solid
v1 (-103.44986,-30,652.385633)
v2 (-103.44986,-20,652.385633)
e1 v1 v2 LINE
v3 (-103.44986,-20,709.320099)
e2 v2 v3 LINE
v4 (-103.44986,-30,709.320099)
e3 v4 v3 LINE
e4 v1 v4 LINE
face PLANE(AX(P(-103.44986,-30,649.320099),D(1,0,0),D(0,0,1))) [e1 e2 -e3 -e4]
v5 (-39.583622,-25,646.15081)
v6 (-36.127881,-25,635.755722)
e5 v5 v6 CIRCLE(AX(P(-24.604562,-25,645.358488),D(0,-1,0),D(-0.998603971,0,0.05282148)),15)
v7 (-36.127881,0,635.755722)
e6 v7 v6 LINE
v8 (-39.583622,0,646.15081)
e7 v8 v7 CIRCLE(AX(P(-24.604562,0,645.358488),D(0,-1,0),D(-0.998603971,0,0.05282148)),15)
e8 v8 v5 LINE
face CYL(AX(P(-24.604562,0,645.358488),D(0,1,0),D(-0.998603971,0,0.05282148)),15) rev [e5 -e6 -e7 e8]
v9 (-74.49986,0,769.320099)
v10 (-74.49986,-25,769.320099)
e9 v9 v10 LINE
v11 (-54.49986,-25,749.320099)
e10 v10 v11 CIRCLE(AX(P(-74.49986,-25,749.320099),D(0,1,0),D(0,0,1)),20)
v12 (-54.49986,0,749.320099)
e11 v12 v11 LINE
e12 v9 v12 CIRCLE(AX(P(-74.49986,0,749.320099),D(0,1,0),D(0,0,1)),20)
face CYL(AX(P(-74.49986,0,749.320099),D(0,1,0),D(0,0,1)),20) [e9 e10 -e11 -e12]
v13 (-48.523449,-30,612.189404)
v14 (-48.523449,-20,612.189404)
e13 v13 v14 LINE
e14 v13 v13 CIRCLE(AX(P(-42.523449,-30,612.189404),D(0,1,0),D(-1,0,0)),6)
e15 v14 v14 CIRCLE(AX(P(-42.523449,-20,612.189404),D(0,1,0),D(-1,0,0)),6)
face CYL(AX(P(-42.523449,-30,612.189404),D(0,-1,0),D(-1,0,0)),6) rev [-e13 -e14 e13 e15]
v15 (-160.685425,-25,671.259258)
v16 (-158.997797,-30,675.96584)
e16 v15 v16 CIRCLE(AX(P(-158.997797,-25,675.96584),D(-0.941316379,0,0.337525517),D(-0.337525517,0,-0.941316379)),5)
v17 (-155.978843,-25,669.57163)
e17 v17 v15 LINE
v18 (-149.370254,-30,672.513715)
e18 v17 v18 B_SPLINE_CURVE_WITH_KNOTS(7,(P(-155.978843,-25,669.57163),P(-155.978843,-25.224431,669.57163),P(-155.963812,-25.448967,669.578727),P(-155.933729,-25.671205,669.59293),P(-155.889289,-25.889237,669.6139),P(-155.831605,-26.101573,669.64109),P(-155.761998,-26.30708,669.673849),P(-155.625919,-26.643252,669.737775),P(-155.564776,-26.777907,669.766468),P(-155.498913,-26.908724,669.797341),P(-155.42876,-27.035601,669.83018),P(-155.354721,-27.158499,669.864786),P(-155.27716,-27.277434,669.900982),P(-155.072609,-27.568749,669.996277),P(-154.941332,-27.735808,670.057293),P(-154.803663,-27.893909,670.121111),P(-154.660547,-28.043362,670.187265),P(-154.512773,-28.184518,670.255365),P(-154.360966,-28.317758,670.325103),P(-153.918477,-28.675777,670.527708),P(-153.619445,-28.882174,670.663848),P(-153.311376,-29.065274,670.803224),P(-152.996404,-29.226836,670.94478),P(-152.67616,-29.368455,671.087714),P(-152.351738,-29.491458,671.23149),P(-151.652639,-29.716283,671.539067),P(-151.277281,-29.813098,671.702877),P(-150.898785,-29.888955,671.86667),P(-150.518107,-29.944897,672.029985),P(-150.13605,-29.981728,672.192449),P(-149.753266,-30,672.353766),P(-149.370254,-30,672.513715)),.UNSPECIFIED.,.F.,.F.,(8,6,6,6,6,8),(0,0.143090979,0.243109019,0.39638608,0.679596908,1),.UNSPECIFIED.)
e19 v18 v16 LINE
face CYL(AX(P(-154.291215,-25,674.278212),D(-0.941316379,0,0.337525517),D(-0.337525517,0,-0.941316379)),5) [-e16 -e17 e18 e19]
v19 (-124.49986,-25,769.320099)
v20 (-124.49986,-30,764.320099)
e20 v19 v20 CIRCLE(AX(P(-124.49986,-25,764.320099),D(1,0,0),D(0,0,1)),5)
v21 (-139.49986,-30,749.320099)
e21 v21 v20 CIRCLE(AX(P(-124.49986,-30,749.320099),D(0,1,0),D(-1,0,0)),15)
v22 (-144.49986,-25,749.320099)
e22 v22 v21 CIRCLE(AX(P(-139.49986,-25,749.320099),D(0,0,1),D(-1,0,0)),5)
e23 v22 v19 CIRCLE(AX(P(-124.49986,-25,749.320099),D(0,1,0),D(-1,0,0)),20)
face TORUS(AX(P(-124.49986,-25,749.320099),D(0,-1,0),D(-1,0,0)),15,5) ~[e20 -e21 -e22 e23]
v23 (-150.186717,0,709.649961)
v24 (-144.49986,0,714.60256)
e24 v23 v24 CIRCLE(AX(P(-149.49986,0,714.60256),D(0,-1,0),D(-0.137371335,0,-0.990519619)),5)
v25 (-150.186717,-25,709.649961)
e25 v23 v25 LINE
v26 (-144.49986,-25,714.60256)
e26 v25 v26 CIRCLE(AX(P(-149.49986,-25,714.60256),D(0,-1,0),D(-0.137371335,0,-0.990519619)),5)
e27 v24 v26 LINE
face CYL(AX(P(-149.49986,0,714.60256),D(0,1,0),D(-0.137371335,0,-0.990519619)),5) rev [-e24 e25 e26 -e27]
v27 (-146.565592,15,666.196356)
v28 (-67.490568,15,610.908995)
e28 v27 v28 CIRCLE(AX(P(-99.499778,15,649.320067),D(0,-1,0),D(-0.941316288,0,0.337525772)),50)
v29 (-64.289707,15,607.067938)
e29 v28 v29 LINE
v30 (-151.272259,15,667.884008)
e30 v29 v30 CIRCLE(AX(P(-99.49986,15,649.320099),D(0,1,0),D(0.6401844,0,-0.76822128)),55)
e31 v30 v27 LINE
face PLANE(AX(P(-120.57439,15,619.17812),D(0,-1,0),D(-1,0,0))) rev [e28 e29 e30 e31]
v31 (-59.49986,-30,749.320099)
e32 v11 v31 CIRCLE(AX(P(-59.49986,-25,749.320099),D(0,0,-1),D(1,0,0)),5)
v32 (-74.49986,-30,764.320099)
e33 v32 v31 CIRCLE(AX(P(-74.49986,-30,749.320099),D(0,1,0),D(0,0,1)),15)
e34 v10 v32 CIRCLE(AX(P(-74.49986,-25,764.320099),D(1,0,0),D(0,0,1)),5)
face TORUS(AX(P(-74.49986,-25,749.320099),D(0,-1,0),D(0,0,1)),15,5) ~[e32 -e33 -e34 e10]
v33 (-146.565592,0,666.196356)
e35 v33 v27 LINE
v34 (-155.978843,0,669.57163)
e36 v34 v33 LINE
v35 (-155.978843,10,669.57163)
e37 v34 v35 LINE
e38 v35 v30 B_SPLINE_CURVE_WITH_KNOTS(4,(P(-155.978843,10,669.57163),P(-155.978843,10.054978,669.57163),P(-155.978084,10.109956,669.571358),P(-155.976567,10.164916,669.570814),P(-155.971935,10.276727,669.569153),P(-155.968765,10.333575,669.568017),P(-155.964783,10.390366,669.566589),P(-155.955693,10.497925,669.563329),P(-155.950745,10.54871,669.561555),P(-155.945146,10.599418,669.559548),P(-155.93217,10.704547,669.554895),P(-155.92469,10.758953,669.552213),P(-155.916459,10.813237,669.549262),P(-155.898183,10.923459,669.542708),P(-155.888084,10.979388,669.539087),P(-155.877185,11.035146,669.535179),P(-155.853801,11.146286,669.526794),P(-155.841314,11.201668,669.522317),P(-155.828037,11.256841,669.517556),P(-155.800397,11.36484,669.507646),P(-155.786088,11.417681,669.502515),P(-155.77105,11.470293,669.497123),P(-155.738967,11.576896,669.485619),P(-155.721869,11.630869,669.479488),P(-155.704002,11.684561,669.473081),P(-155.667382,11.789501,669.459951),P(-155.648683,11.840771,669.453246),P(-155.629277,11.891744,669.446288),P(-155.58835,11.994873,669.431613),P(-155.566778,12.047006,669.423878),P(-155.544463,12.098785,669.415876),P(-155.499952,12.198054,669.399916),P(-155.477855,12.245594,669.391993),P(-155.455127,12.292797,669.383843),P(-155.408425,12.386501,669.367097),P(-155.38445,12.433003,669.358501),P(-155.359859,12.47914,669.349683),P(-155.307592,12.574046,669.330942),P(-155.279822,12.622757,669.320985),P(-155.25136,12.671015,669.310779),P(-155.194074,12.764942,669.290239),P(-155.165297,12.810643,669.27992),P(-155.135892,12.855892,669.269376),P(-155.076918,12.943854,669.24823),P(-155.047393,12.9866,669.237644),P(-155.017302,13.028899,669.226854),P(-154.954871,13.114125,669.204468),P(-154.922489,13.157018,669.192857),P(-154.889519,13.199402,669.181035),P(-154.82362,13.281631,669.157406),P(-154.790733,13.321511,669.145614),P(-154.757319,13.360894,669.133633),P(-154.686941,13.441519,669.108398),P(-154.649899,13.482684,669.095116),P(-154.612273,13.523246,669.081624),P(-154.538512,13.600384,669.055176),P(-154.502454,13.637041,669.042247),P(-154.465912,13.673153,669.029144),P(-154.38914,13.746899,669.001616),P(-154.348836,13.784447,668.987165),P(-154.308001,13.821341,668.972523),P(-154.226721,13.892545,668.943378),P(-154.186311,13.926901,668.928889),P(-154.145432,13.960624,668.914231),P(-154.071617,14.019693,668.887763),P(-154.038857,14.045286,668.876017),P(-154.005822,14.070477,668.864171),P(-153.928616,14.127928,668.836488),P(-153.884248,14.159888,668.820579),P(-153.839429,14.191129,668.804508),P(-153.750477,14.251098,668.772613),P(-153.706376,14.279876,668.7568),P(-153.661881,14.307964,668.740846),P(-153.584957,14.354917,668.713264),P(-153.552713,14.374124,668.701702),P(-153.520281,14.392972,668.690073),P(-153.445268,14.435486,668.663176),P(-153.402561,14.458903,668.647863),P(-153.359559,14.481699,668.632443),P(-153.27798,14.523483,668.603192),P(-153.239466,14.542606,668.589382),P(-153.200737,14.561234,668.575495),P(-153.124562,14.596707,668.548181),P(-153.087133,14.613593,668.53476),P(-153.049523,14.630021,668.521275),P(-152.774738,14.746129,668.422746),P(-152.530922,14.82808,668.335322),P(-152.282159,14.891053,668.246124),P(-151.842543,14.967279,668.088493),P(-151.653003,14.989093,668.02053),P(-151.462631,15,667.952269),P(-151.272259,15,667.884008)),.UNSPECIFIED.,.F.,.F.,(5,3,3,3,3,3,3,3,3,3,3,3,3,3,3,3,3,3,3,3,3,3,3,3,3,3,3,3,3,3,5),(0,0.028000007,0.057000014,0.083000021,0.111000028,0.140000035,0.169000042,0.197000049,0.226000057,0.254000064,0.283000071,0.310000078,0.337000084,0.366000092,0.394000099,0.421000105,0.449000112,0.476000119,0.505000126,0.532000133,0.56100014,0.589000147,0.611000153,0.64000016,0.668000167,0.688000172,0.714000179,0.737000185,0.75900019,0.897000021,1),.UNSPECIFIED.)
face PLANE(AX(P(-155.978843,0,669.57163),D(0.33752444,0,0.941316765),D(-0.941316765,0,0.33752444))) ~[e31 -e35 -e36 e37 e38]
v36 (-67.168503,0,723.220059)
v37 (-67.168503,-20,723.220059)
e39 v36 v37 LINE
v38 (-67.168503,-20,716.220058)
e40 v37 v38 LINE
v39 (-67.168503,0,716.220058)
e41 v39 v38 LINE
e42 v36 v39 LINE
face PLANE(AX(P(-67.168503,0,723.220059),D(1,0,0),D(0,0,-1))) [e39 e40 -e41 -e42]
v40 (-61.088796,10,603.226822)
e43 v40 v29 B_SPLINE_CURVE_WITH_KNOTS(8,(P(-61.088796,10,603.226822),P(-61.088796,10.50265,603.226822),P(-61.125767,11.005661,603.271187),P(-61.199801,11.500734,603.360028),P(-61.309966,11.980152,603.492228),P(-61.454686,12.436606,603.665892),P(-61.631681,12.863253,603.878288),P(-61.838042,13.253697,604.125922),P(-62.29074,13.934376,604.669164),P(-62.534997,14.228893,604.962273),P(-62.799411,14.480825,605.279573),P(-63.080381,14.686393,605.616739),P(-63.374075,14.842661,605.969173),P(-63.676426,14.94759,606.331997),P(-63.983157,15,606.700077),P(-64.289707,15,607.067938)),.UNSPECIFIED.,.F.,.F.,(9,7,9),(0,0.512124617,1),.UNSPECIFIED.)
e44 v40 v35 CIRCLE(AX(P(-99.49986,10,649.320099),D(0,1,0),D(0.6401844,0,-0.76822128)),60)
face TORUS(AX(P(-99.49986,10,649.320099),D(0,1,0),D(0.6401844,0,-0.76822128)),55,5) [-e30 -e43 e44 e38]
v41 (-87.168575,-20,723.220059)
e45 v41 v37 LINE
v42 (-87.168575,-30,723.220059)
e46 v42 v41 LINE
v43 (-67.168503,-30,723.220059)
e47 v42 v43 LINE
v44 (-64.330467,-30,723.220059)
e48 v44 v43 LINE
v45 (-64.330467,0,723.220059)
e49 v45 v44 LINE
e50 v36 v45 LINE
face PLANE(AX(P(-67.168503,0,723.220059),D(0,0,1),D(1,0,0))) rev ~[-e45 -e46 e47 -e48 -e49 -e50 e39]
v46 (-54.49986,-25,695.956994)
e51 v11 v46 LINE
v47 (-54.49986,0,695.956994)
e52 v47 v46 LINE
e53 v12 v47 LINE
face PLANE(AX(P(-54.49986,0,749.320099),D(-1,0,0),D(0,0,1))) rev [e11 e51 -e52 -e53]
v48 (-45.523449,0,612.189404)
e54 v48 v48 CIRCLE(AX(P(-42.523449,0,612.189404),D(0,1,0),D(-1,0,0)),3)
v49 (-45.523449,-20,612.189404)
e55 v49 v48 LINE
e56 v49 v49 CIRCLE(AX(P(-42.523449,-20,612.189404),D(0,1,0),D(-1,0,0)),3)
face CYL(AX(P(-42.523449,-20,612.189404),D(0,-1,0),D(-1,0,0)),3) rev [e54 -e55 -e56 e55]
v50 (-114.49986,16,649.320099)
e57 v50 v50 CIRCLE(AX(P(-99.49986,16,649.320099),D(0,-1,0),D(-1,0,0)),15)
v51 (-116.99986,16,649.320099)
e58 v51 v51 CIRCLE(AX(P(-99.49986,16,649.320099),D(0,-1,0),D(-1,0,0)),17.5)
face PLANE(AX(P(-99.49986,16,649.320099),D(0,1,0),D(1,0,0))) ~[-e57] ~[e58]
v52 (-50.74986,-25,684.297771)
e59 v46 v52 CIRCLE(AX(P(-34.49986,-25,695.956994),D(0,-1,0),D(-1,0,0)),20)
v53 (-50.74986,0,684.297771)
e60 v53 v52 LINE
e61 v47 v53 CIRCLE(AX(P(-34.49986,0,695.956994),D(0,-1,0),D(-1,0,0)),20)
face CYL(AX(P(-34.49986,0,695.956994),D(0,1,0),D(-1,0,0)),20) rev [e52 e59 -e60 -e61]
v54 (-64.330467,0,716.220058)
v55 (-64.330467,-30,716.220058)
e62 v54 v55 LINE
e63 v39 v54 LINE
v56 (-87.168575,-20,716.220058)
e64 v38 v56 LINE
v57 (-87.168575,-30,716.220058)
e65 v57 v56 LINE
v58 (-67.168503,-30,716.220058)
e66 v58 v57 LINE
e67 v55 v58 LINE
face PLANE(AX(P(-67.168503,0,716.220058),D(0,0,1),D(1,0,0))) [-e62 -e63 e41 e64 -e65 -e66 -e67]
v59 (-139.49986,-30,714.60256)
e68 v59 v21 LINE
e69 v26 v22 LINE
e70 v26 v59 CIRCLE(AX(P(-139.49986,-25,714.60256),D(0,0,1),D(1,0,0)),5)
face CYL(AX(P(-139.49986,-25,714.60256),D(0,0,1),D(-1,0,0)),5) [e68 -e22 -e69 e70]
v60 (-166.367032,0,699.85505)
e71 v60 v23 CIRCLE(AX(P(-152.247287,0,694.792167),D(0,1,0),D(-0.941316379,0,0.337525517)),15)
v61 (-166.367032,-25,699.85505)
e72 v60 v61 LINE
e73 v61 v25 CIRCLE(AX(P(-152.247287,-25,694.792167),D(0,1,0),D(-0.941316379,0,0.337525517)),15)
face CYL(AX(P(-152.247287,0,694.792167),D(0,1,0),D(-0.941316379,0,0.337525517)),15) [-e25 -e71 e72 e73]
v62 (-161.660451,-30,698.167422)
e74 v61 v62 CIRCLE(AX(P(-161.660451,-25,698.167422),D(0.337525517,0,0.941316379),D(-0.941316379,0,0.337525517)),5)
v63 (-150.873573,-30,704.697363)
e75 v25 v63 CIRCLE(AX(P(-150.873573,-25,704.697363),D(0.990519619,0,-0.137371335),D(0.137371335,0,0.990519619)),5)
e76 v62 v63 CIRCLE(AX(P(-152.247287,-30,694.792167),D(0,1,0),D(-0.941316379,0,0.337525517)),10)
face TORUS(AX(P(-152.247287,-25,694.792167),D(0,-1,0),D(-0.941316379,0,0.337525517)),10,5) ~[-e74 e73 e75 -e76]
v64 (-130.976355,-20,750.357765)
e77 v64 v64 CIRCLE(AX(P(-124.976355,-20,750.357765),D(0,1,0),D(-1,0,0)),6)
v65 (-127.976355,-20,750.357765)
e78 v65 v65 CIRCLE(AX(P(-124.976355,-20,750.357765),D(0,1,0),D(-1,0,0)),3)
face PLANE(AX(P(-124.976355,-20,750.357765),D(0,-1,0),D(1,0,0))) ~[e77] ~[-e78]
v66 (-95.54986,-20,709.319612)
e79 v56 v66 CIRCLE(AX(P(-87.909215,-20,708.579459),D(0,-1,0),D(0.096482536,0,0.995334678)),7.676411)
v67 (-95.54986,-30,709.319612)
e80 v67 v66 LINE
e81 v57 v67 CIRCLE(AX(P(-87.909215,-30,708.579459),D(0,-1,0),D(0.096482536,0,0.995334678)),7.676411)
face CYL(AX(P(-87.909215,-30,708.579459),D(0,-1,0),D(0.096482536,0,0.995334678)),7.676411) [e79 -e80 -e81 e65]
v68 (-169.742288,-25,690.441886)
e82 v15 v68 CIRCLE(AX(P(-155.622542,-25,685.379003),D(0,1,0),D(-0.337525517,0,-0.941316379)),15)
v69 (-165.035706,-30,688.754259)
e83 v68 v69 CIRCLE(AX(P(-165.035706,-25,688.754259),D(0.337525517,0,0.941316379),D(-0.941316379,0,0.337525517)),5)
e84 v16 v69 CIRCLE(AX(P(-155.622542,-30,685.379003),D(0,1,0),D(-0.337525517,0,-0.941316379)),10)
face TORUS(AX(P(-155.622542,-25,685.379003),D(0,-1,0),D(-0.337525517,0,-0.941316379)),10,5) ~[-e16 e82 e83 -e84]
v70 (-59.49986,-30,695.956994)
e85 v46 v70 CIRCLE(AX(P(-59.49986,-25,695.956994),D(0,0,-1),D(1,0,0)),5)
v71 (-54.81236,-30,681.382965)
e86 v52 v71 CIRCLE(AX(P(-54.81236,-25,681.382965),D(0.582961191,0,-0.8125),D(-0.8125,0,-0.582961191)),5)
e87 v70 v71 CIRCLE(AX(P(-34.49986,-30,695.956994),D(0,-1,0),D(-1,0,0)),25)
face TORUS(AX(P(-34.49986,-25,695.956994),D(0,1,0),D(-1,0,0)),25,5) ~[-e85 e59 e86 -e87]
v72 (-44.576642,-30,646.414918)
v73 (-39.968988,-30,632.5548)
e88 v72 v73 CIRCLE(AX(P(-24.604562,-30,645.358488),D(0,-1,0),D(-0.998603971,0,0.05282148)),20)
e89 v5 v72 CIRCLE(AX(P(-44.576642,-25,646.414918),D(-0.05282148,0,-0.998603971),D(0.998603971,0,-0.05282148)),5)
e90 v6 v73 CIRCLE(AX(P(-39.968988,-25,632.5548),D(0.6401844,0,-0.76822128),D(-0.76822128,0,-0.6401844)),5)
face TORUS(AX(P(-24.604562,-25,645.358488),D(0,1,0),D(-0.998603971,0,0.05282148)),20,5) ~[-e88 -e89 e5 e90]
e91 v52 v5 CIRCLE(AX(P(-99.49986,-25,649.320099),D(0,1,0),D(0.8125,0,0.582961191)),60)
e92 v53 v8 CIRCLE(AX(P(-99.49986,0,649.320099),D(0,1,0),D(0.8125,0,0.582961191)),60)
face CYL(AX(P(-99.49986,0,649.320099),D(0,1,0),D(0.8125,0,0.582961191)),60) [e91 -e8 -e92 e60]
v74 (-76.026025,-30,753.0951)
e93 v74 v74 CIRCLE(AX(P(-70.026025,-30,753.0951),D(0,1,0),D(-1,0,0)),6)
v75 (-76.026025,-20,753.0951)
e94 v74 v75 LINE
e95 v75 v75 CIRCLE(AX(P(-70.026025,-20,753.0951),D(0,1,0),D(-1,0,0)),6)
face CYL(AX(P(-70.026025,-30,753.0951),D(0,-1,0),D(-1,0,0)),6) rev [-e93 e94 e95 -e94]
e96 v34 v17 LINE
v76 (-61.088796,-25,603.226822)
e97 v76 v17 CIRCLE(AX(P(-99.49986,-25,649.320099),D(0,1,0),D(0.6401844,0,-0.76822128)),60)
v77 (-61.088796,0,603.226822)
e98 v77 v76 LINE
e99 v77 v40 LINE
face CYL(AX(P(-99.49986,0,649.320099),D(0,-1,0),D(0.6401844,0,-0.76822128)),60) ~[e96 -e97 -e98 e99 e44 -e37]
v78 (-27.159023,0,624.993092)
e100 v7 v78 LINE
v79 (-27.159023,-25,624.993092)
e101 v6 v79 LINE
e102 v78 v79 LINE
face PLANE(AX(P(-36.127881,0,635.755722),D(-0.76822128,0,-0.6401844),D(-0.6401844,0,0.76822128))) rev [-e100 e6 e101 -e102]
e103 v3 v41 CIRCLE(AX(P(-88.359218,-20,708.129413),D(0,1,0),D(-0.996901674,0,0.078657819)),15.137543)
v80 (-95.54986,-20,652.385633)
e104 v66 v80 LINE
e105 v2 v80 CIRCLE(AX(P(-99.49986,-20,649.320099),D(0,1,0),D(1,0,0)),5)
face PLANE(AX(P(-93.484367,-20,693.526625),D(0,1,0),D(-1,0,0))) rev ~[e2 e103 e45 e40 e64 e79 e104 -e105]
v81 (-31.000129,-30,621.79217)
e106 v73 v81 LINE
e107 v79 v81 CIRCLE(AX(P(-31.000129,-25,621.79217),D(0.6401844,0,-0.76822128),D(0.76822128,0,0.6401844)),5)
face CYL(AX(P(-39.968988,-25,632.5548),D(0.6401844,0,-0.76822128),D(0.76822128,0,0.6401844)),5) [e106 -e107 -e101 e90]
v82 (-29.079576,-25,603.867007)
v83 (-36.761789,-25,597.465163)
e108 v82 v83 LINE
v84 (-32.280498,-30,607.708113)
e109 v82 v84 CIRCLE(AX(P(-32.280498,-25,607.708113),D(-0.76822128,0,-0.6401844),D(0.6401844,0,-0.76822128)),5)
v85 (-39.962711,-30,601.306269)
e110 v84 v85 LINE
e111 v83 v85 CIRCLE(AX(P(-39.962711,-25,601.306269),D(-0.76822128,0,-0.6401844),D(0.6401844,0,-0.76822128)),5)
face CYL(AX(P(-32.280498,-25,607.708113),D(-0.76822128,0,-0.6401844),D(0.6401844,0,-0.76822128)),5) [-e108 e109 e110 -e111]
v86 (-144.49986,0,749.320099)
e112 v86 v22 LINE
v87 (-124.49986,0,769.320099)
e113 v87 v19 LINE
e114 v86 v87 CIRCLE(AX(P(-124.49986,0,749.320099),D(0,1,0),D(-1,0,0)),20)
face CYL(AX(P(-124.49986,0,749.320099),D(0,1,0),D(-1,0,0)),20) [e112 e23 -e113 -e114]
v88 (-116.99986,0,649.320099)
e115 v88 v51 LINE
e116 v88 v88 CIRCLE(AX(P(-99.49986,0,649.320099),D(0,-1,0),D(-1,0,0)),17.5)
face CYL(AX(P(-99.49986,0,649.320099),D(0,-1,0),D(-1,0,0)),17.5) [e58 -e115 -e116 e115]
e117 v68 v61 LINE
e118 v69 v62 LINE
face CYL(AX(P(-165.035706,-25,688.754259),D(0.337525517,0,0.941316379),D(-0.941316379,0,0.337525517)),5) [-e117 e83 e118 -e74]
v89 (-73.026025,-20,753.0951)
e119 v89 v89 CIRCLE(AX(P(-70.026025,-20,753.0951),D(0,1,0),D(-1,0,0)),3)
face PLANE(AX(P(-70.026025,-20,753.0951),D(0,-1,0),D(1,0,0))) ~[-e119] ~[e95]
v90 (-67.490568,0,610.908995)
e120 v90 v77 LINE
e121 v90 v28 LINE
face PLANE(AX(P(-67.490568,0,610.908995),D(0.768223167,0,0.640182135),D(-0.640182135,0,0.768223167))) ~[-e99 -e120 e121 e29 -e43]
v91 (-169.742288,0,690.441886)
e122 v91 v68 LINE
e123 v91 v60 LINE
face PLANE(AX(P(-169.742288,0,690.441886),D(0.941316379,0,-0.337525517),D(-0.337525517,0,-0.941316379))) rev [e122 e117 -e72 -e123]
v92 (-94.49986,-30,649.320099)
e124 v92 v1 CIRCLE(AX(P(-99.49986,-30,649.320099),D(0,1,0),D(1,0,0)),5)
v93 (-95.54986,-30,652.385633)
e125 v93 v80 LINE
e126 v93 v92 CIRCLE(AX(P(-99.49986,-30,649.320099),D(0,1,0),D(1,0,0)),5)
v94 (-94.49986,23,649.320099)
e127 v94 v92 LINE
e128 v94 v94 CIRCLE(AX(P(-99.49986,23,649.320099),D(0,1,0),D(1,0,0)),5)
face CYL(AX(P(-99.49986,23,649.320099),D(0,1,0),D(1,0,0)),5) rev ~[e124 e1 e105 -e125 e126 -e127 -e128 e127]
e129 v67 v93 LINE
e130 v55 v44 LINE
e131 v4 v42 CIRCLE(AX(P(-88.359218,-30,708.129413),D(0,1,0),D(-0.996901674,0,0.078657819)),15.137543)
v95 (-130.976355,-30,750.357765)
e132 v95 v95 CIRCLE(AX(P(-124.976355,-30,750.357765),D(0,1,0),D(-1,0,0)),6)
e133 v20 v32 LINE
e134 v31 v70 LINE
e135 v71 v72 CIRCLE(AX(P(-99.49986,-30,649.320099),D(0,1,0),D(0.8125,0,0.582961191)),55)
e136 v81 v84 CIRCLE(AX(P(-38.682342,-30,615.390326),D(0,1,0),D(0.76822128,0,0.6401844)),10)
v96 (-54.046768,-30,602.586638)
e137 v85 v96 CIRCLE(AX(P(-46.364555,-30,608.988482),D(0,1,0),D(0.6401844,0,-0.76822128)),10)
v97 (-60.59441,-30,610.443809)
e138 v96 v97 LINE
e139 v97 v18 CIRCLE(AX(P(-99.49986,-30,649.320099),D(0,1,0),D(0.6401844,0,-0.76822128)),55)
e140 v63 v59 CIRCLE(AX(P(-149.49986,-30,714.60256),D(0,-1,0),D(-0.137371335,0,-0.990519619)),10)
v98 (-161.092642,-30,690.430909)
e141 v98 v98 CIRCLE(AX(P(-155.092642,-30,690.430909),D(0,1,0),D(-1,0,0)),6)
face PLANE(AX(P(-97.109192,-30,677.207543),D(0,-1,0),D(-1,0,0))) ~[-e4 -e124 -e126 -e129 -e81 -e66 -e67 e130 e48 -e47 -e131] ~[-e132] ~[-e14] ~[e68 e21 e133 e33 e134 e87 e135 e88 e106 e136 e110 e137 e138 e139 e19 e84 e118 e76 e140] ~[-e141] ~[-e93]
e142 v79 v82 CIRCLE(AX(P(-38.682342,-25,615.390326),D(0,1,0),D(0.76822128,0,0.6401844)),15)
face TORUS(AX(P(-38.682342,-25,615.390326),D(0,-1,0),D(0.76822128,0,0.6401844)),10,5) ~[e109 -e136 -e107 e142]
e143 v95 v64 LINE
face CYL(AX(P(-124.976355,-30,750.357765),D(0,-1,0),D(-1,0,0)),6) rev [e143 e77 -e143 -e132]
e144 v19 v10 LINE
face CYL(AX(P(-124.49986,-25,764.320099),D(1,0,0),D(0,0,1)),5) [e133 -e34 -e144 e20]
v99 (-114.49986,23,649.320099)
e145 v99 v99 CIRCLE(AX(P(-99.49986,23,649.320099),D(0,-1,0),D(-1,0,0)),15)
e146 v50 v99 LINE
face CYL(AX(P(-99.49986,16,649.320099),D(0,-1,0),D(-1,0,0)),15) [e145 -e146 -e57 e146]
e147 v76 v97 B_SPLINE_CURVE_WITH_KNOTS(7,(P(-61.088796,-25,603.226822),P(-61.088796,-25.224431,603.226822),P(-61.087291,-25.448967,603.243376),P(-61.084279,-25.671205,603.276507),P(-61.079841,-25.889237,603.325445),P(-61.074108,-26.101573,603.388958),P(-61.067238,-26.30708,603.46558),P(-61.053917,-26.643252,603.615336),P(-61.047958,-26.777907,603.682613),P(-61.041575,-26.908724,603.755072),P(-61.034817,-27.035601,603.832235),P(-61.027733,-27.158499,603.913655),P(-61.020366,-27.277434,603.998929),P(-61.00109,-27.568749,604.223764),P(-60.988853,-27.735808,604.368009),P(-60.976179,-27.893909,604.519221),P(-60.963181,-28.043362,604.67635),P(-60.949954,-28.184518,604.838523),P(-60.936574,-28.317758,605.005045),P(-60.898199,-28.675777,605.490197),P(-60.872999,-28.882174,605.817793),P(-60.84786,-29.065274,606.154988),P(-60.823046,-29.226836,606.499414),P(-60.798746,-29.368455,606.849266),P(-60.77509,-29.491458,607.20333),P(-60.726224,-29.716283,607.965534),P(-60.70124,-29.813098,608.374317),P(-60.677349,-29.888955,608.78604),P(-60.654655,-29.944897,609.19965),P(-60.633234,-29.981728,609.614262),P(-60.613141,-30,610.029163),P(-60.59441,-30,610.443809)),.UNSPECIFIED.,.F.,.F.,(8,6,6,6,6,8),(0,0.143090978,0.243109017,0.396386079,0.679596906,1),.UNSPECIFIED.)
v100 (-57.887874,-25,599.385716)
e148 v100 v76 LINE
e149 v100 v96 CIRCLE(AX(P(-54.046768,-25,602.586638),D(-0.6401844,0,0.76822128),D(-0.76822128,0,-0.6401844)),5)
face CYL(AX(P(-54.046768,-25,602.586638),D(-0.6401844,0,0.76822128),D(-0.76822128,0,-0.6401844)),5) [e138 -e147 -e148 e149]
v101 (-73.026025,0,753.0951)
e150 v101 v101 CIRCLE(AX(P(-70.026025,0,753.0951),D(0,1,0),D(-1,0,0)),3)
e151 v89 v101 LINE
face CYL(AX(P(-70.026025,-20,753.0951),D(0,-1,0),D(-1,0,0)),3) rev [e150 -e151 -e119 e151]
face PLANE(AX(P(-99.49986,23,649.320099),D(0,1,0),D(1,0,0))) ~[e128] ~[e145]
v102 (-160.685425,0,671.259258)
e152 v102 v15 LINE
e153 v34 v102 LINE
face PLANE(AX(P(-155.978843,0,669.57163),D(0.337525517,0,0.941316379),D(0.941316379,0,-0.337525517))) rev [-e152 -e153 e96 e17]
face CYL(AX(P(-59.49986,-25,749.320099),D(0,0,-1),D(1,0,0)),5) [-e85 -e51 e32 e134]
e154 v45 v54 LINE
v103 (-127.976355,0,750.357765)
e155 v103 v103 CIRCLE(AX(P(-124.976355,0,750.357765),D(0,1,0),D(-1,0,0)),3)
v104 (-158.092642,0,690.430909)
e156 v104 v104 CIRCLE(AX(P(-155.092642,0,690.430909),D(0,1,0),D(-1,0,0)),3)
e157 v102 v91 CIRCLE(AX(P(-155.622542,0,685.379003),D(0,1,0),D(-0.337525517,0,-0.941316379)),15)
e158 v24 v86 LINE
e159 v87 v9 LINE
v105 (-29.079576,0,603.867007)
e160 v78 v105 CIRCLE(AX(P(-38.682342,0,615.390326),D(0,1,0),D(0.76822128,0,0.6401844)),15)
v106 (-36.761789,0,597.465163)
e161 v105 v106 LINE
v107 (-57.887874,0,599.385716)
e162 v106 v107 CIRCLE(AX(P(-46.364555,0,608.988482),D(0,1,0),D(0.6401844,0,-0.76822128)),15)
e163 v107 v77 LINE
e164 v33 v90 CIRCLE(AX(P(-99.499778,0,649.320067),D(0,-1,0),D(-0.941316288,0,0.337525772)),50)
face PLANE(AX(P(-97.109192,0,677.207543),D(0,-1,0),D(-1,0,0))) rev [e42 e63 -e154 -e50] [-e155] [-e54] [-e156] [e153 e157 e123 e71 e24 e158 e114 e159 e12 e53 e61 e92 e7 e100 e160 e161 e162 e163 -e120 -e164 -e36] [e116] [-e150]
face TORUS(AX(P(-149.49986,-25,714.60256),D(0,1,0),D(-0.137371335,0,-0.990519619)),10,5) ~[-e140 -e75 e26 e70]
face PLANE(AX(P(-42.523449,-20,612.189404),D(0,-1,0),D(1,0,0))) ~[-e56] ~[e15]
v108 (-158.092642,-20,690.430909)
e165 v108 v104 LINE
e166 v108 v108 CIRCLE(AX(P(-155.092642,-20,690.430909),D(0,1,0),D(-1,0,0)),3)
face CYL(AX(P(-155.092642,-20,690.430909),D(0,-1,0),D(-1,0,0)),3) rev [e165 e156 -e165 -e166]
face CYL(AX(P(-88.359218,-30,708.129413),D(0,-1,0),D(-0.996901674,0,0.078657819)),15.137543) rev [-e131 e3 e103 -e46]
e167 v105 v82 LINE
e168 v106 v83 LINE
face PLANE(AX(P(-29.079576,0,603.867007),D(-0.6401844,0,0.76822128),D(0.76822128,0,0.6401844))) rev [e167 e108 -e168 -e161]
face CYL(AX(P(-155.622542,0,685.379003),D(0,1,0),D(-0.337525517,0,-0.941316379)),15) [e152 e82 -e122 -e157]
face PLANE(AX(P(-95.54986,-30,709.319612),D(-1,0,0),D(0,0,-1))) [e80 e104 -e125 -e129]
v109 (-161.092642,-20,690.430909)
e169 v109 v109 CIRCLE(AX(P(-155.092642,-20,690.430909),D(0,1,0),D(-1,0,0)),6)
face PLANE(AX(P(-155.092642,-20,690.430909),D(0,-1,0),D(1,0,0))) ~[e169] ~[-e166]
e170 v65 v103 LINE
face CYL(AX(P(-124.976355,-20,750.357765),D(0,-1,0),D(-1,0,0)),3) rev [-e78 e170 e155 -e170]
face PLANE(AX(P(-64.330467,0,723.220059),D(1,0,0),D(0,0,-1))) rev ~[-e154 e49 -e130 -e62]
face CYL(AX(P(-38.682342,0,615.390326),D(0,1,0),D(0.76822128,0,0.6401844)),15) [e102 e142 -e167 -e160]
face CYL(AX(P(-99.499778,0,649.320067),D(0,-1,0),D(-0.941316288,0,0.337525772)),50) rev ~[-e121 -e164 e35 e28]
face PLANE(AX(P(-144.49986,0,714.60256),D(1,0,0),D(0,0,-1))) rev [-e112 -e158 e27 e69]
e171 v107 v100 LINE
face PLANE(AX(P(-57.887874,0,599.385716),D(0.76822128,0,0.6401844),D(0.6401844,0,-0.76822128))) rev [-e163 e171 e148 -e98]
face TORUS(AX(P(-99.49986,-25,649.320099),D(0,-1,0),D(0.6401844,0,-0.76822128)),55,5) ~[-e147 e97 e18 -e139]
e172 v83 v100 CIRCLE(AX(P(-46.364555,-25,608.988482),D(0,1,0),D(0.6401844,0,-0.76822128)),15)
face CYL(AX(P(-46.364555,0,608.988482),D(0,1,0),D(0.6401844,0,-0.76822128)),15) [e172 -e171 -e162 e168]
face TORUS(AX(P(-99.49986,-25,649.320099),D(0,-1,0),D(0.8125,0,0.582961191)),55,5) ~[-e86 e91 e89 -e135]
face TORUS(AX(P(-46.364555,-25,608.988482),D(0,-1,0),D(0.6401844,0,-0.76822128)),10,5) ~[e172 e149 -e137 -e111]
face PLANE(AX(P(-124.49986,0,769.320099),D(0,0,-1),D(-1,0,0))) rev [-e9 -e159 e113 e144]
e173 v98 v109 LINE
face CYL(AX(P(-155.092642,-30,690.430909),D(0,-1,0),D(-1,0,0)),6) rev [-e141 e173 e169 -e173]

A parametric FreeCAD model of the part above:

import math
import FreeCAD as App
import Part
import Sketcher
from FreeCAD import Vector
Q = App.Units.Quantity


def edges_at(feature, points):
    """Names of the edges that pass closest to the given points."""
    edges = feature.Shape.Edges
    near = lambda p: min(range(len(edges)), key=lambda i: edges[i].distToShape(Part.Vertex(*p))[0])
    return sorted({f"Edge{near(p) + 1}" for p in points})


def add_polygon(sketch, points):
    """Adds a closed chain of lines whose ends are joined by coincident constraints."""
    first, n = sketch.GeometryCount, len(points)
    for a, b in zip(points, points[1:] + points[:1]):
        sketch.addGeometry(Part.LineSegment(App.Vector(*a, 0), App.Vector(*b, 0)), False)
    for i in range(n):
        sketch.addConstraint(Sketcher.Constraint("Coincident", first + i, 2, first + (i + 1) % n, 1))

doc = App.newDocument("Part")
params = doc.addObject("Spreadsheet::Sheet", "Params")
for row, (alias, value) in enumerate([
    ("sketch1_radius", "15 mm"),
    ("sketch1_radius2", "5 mm"),
    ("sketch1_radius3", "20 mm"),
    ("sketch1_radius4", "60 mm"),
    ("sketch1_width", "50 mm"),
    ("pad1_length", "30 mm"),
    ("sketch2_diameter", "12 mm"),
    ("pocket1_length", "10 mm"),
    ("sketch3_diameter", "6 mm"),
    ("sketch4_diameter", "6 mm"),
    ("sketch5_diameter", "6 mm"),
    ("sketch6_diameter", "6 mm"),
    ("sketch7_diameter", "35 mm"),
    ("pad2_length", "16 mm"),
    ("sketch8_diameter", "30 mm"),
    ("pad3_length", "7 mm"),
    ("sketch9_radius", "60 mm"),
    ("sketch9_radius2", "50 mm"),
    ("pad4_length", "15 mm"),
    ("fillet_radius", "5 mm"),
    ("sketch10_diameter", "10 mm"),
    ("sketch11_height", "7.000001 mm"),
    ("pocket7_length", "30 mm"),
    ("sketch12_height", "7.000001 mm"),
    ("sketch12_height2", "60 mm"),
    ("sketch12_width", "7.9 mm"),
    ("pocket8_length", "10 mm"),
], start=1):
    params.set(f"A{row}", alias)
    params.set(f"B{row}", "=" + value)
    params.setAlias(f"B{row}", alias)

body = doc.addObject("PartDesign::Body", "Body")

# Sketch on XZ plane
sketch1 = body.newObject("Sketcher::SketchObject", "Sketch")
sketch1.AttachmentSupport = (doc.getObject("XZ_Plane"), [""])
sketch1.MapMode = "FlatFace"
sketch1.addGeometry([
    Part.LineSegment(Vector(156, 669.6, 0), Vector(160.7, 671.3, 0)),  # 0
    Part.ArcOfCircle(Part.Circle(Vector(155.6, 685.4, 0), Vector(0, 0, 1), 15), math.radians(-70), math.radians(20)),  # 1
    Part.LineSegment(Vector(169.7, 690.4, 0), Vector(166.4, 699.9, 0)),  # 2
    Part.ArcOfCircle(Part.Circle(Vector(152.2, 694.8, 0), Vector(0, 0, 1), 15), math.radians(20), math.radians(98)),  # 3
    Part.ArcOfCircle(Part.Circle(Vector(149.5, 714.6, 0), Vector(0, 0, 1), 5), math.radians(180), math.radians(278)),  # 4
    Part.LineSegment(Vector(144.5, 714.6, 0), Vector(144.5, 749.3, 0)),  # 5
    Part.ArcOfCircle(Part.Circle(Vector(124.5, 749.3, 0), Vector(0, 0, 1), 20), math.radians(0), math.radians(90)),  # 6
    Part.LineSegment(Vector(124.5, 769.3, 0), Vector(74.5, 769.3, 0)),  # 7
    Part.ArcOfCircle(Part.Circle(Vector(74.5, 749.3, 0), Vector(0, 0, 1), 20), math.radians(90), math.radians(180)),  # 8
    Part.LineSegment(Vector(54.5, 749.3, 0), Vector(54.5, 696, 0)),  # 9
    Part.ArcOfCircle(Part.Circle(Vector(34.5, 696, 0), Vector(0, 0, 1), 20), math.radians(-36), math.radians(0)),  # 10
    Part.ArcOfCircle(Part.Circle(Vector(99.5, 649.3, 0), Vector(0, 0, 1), 60), math.radians(144), math.radians(183)),  # 11
    Part.ArcOfCircle(Part.Circle(Vector(24.6, 645.4, 0), Vector(0, 0, 1), 15), math.radians(-40), math.radians(3)),  # 12
    Part.LineSegment(Vector(36.1, 635.8, 0), Vector(27.2, 625, 0)),  # 13
    Part.ArcOfCircle(Part.Circle(Vector(38.7, 615.4, 0), Vector(0, 0, 1), 15), math.radians(140), math.radians(230)),  # 14
    Part.LineSegment(Vector(29.1, 603.9, 0), Vector(36.8, 597.5, 0)),  # 15
    Part.ArcOfCircle(Part.Circle(Vector(46.4, 609, 0), Vector(0, 0, 1), 15), math.radians(-130), math.radians(-40)),  # 16
    Part.LineSegment(Vector(57.9, 599.4, 0), Vector(61.1, 603.2, 0)),  # 17
    Part.ArcOfCircle(Part.Circle(Vector(99.5, 649.3, 0), Vector(0, 0, 1), 60), math.radians(-130), math.radians(20)),  # 18
], False)
sketch1.addConstraint([
    Sketcher.Constraint("Tangent", 0, 2, 1, 1),
    Sketcher.Constraint("Tangent", 1, 2, 2, 1),
    Sketcher.Constraint("Tangent", 2, 2, 3, 1),
    Sketcher.Constraint("Tangent", 3, 2, 4, 2),
    Sketcher.Constraint("Tangent", 4, 1, 5, 1),
    Sketcher.Constraint("Tangent", 5, 2, 6, 1),
    Sketcher.Constraint("Tangent", 6, 2, 7, 1),
    Sketcher.Constraint("Tangent", 7, 2, 8, 1),
    Sketcher.Constraint("Tangent", 8, 2, 9, 1),
    Sketcher.Constraint("Tangent", 9, 2, 10, 2),
    Sketcher.Constraint("Tangent", 10, 1, 11, 1),
    Sketcher.Constraint("Tangent", 11, 2, 12, 2),
    Sketcher.Constraint("Tangent", 12, 1, 13, 1),
    Sketcher.Constraint("Tangent", 13, 2, 14, 1),
    Sketcher.Constraint("Tangent", 14, 2, 15, 1),
    Sketcher.Constraint("Tangent", 15, 2, 16, 1),
    Sketcher.Constraint("Tangent", 16, 2, 17, 1),
    Sketcher.Constraint("Coincident", 17, 2, 18, 1),
    Sketcher.Constraint("Coincident", 18, 2, 0, 1),
    Sketcher.Constraint("Vertical", 5),
    Sketcher.Constraint("Horizontal", 7),
    Sketcher.Constraint("Vertical", 9),
    Sketcher.Constraint("Coincident", 18, 3, 11, 3),
    Sketcher.Constraint("Equal", 1, 3),
    Sketcher.Constraint("Equal", 6, 8),
    Sketcher.Constraint("Equal", 8, 10),
    Sketcher.Constraint("Equal", 3, 12),
    Sketcher.Constraint("Equal", 12, 14),
    Sketcher.Constraint("Equal", 14, 16),
    Sketcher.Constraint("Equal", 11, 18),
    Sketcher.Constraint("Perpendicular", 0, 2),
    Sketcher.Constraint("Perpendicular", 13, 15),
    Sketcher.Constraint("Perpendicular", 15, 17),
    Sketcher.Constraint("Equal", 2, 15),
    Sketcher.Constraint("Equal", 0, 17),
    Sketcher.Constraint("Radius", 1, Q("15 mm")),
    Sketcher.Constraint("Radius", 4, Q("5 mm")),
    Sketcher.Constraint("Radius", 6, Q("20 mm")),
    Sketcher.Constraint("Radius", 11, Q("60 mm")),
    Sketcher.Constraint("DistanceX", 7, 2, 7, 1, Q("50 mm")),
    Sketcher.Constraint("Distance", 0, Q("5 mm")),
    Sketcher.Constraint("Distance", 2, Q("10 mm")),
    Sketcher.Constraint("DistanceX", 10, 3, 11, 3, Q("65 mm")),
    Sketcher.Constraint("DistanceY", 11, 3, 6, 3, Q("100 mm")),
    Sketcher.Constraint("DistanceX", 3, 3, 1, 2, Q("17.495001 mm")),
    Sketcher.Constraint("DistanceY", 5, 1, 5, 2, Q("34.71754 mm")),
    Sketcher.Constraint("DistanceY", -1, 1, 6, 3, Q("749.320099 mm")),
    Sketcher.Constraint("DistanceX", 14, 3, 1, 3, Q("116.9402 mm")),
    Sketcher.Constraint("DistanceX", 13, 2, 11, 2, Q("12.424599 mm")),
    Sketcher.Constraint("DistanceX", -1, 1, 1, 3, Q("155.622542 mm")),
])
sketch1.setExpression("Constraints[35]", "Params.sketch1_radius")
sketch1.setExpression("Constraints[36]", "Params.sketch1_radius2")
sketch1.setExpression("Constraints[37]", "Params.sketch1_radius3")
sketch1.setExpression("Constraints[38]", "Params.sketch1_radius4")
sketch1.setExpression("Constraints[39]", "Params.sketch1_width")
pad1 = body.newObject("PartDesign::Pad", "Pad")
pad1.Profile = sketch1
pad1.setExpression("Length", "Params.pad1_length")

# Sketch on XZ plane
sketch2 = body.newObject("Sketcher::SketchObject", "Sketch001")
sketch2.AttachmentSupport = (doc.getObject("XZ_Plane"), [""])
sketch2.MapMode = "FlatFace"
sketch2.AttachmentOffset = App.Placement(Vector(0, 0, 30), App.Rotation())
sketch2.addGeometry([
    Part.Circle(Vector(43, 612, 0), Vector(0, 0, 1), 6),
    Part.Circle(Vector(155, 690, 0), Vector(0, 0, 1), 6),
    Part.Circle(Vector(125, 750, 0), Vector(0, 0, 1), 6),
    Part.Circle(Vector(70, 753, 0), Vector(0, 0, 1), 6),
], False)
sketch2.addConstraint([
    Sketcher.Constraint("Equal", 0, 1),
    Sketcher.Constraint("Equal", 1, 2),
    Sketcher.Constraint("Equal", 2, 3),
    Sketcher.Constraint("Diameter", 0, Q("12 mm")),
    Sketcher.Constraint("DistanceY", -1, 1, 3, 3, Q("753.0951 mm")),
    Sketcher.Constraint("DistanceX", -1, 1, 0, 3, Q("42.523449 mm")),
    Sketcher.Constraint("DistanceY", -1, 1, 1, 3, Q("690.430909 mm")),
    Sketcher.Constraint("DistanceY", 0, 3, 2, 3, Q("138.168361 mm")),
    Sketcher.Constraint("DistanceX", 3, 3, 2, 3, Q("54.95033 mm")),
    Sketcher.Constraint("DistanceY", -1, 1, 0, 3, Q("612.189404 mm")),
    Sketcher.Constraint("DistanceX", -1, 1, 1, 3, Q("155.092642 mm")),
    Sketcher.Constraint("DistanceX", -1, 1, 2, 3, Q("124.976355 mm")),
])
sketch2.setExpression("Constraints[3]", "Params.sketch2_diameter")
pocket1 = body.newObject("PartDesign::Pocket", "Pocket")
pocket1.Profile = sketch2
pocket1.setExpression("Length", "Params.pocket1_length")

# Sketch on XZ plane
sketch3 = body.newObject("Sketcher::SketchObject", "Sketch002")
sketch3.AttachmentSupport = (doc.getObject("XZ_Plane"), [""])
sketch3.MapMode = "FlatFace"
sketch3.AttachmentOffset = App.Placement(Vector(0, 0, 20), App.Rotation())
sketch3.addGeometry(Part.Circle(Vector(42.5, 612.2, 0), Vector(0, 0, 1), 3), False)
sketch3.addConstraint([
    Sketcher.Constraint("Diameter", 0, Q("6 mm")),
    Sketcher.Constraint("DistanceX", -1, 1, 0, 3, Q("42.523449 mm")),
    Sketcher.Constraint("DistanceY", -1, 1, 0, 3, Q("612.189404 mm")),
])
sketch3.setExpression("Constraints[0]", "Params.sketch3_diameter")
pocket2 = body.newObject("PartDesign::Pocket", "Pocket001")
pocket2.Profile = sketch3
pocket2.Type = "UpToFirst"

# Sketch on XZ plane
sketch4 = body.newObject("Sketcher::SketchObject", "Sketch003")
sketch4.AttachmentSupport = (doc.getObject("XZ_Plane"), [""])
sketch4.MapMode = "FlatFace"
sketch4.AttachmentOffset = App.Placement(Vector(0, 0, 20), App.Rotation())
sketch4.addGeometry(Part.Circle(Vector(155.1, 690.4, 0), Vector(0, 0, 1), 3), False)
sketch4.addConstraint([
    Sketcher.Constraint("Diameter", 0, Q("6 mm")),
    Sketcher.Constraint("DistanceY", -1, 1, 0, 3, Q("690.430909 mm")),
    Sketcher.Constraint("DistanceX", -1, 1, 0, 3, Q("155.092642 mm")),
])
sketch4.setExpression("Constraints[0]", "Params.sketch4_diameter")
pocket3 = body.newObject("PartDesign::Pocket", "Pocket002")
pocket3.Profile = sketch4
pocket3.Type = "UpToFirst"

# Sketch on XZ plane
sketch5 = body.newObject("Sketcher::SketchObject", "Sketch004")
sketch5.AttachmentSupport = (doc.getObject("XZ_Plane"), [""])
sketch5.MapMode = "FlatFace"
sketch5.AttachmentOffset = App.Placement(Vector(0, 0, 20), App.Rotation())
sketch5.addGeometry(Part.Circle(Vector(125, 750.4, 0), Vector(0, 0, 1), 3), False)
sketch5.addConstraint([
    Sketcher.Constraint("Diameter", 0, Q("6 mm")),
    Sketcher.Constraint("DistanceX", -1, 1, 0, 3, Q("124.976355 mm")),
    Sketcher.Constraint("DistanceY", -1, 1, 0, 3, Q("750.357765 mm")),
])
sketch5.setExpression("Constraints[0]", "Params.sketch5_diameter")
pocket4 = body.newObject("PartDesign::Pocket", "Pocket003")
pocket4.Profile = sketch5
pocket4.Type = "UpToFirst"

# Sketch on XZ plane
sketch6 = body.newObject("Sketcher::SketchObject", "Sketch005")
sketch6.AttachmentSupport = (doc.getObject("XZ_Plane"), [""])
sketch6.MapMode = "FlatFace"
sketch6.AttachmentOffset = App.Placement(Vector(0, 0, 20), App.Rotation())
sketch6.addGeometry(Part.Circle(Vector(70, 753.1, 0), Vector(0, 0, 1), 3), False)
sketch6.addConstraint([
    Sketcher.Constraint("Diameter", 0, Q("6 mm")),
    Sketcher.Constraint("DistanceY", -1, 1, 0, 3, Q("753.0951 mm")),
    Sketcher.Constraint("DistanceX", -1, 1, 0, 3, Q("70.026025 mm")),
])
sketch6.setExpression("Constraints[0]", "Params.sketch6_diameter")
pocket5 = body.newObject("PartDesign::Pocket", "Pocket004")
pocket5.Profile = sketch6
pocket5.Type = "UpToFirst"

# Sketch on XZ plane
sketch7 = body.newObject("Sketcher::SketchObject", "Sketch006")
sketch7.AttachmentSupport = (doc.getObject("XZ_Plane"), [""])
sketch7.MapMode = "FlatFace"
sketch7.addGeometry(Part.Circle(Vector(99, 649, 0), Vector(0, 0, 1), 18), False)
sketch7.addConstraint([
    Sketcher.Constraint("Diameter", 0, Q("35 mm")),
    Sketcher.Constraint("DistanceY", -1, 1, 0, 3, Q("649.320099 mm")),
    Sketcher.Constraint("DistanceX", -1, 1, 0, 3, Q("99.49986 mm")),
])
sketch7.setExpression("Constraints[0]", "Params.sketch7_diameter")
pad2 = body.newObject("PartDesign::Pad", "Pad001")
pad2.Profile = sketch7
pad2.setExpression("Length", "Params.pad2_length")
pad2.Reversed = True

# Sketch on XZ plane
sketch8 = body.newObject("Sketcher::SketchObject", "Sketch007")
sketch8.AttachmentSupport = (doc.getObject("XZ_Plane"), [""])
sketch8.MapMode = "FlatFace"
sketch8.AttachmentOffset = App.Placement(Vector(0, 0, -16), App.Rotation())
sketch8.addGeometry(Part.Circle(Vector(99, 649, 0), Vector(0, 0, 1), 15), False)
sketch8.addConstraint([
    Sketcher.Constraint("Diameter", 0, Q("30 mm")),
    Sketcher.Constraint("DistanceY", -1, 1, 0, 3, Q("649.320099 mm")),
    Sketcher.Constraint("DistanceX", -1, 1, 0, 3, Q("99.49986 mm")),
])
sketch8.setExpression("Constraints[0]", "Params.sketch8_diameter")
pad3 = body.newObject("PartDesign::Pad", "Pad002")
pad3.Profile = sketch8
pad3.setExpression("Length", "Params.pad3_length")
pad3.Reversed = True

# Sketch on XZ plane
sketch9 = body.newObject("Sketcher::SketchObject", "Sketch008")
sketch9.AttachmentSupport = (doc.getObject("XZ_Plane"), [""])
sketch9.MapMode = "FlatFace"
sketch9.addGeometry([
    Part.LineSegment(Vector(147, 666, 0), Vector(156, 670, 0)),
    Part.ArcOfCircle(Part.Circle(Vector(99, 649, 0), Vector(0, 0, 1), 60), math.radians(-130), math.radians(20)),
    Part.LineSegment(Vector(61, 603, 0), Vector(67, 611, 0)),
    Part.ArcOfCircle(Part.Circle(Vector(99, 649, 0), Vector(0, 0, 1), 50), math.radians(-130), math.radians(20)),
], False)
sketch9.addConstraint([
    Sketcher.Constraint("Coincident", 0, 2, 1, 2),
    Sketcher.Constraint("Coincident", 1, 1, 2, 1),
    Sketcher.Constraint("Coincident", 2, 2, 3, 1),
    Sketcher.Constraint("Coincident", 3, 2, 0, 1),
    Sketcher.Constraint("Radius", 1, Q("60 mm")),
    Sketcher.Constraint("Radius", 3, Q("50 mm")),
    Sketcher.Constraint("DistanceY", -1, 1, 1, 3, Q("649.320099 mm")),
    Sketcher.Constraint("Distance", 0, Q("10.000088 mm")),
    Sketcher.Constraint("DistanceX", -1, 1, 1, 3, Q("99.49986 mm")),
    Sketcher.Constraint("DistanceY", -1, 1, 0, 2, Q("669.57163 mm")),
    Sketcher.Constraint("DistanceX", -1, 1, 2, 2, Q("67.490568 mm")),
    Sketcher.Constraint("DistanceX", -1, 1, 3, 2, Q("146.565592 mm")),
    Sketcher.Constraint("DistanceX", 1, 1, 3, 3, Q("38.410982 mm")),
    Sketcher.Constraint("DistanceX", 1, 1, 2, 2, Q("6.401772 mm")),
])
sketch9.setExpression("Constraints[4]", "Params.sketch9_radius")
sketch9.setExpression("Constraints[5]", "Params.sketch9_radius2")
pad4 = body.newObject("PartDesign::Pad", "Pad003")
pad4.Profile = sketch9
pad4.setExpression("Length", "Params.pad4_length")
pad4.Reversed = True
doc.recompute()

fillet = body.newObject("PartDesign::Fillet", "Fillet")
fillet.Base = (pad4, edges_at(pad4, [
    (133.88, 15, 600.147),
    (23.744, -30, 614.032),
    (32.921, -30, 600.666),
    (47.723, -30, 594.05),
    (59.488, -30, 601.306),
    (133.88, -30, 600.147),
    (158.332, -30, 670.415),
    (169.187, -30, 678.975),
    (168.055, -30, 695.148),
    (160.015, -30, 707.624),
    (146.216, -30, 710.832),
    (38.839, -30, 640.627),
    (144.5, -30, 731.961),
    (138.642, -30, 763.462),
    (99.5, -30, 769.32),
    (60.358, -30, 763.462),
    (54.5, -30, 722.639),
    (53.539, -30, 689.833),
    (41.916, -30, 666.176),
    (31.643, -30, 630.374),
]))
fillet.setExpression("Radius", "Params.fillet_radius")
body2 = doc.addObject("PartDesign::Body", "Body001")
doc.recompute()

mirroring = doc.addObject("Part::Mirroring", "Mirroring")
mirroring.Source = body
mirroring.Base = Vector(0, 0, 0)
mirroring.Normal = Vector(1, 0, 0)
body2.BaseFeature = mirroring
doc.recompute()

# Sketch on XZ plane
sketch10 = body2.newObject("Sketcher::SketchObject", "Sketch009")
sketch10.AttachmentSupport = (doc.getObject("XZ_Plane001"), [""])
sketch10.MapMode = "FlatFace"
sketch10.AttachmentOffset = App.Placement(Vector(0, 0, -23), App.Rotation())
sketch10.addGeometry(Part.Circle(Vector(-99, 649, 0), Vector(0, 0, 1), 5), False)
sketch10.addConstraint([
    Sketcher.Constraint("Diameter", 0, Q("10 mm")),
    Sketcher.Constraint("DistanceY", -1, 1, 0, 3, Q("649.320099 mm")),
    Sketcher.Constraint("DistanceX", 0, 3, -1, 1, Q("99.49986 mm")),
])
sketch10.setExpression("Constraints[0]", "Params.sketch10_diameter")
pocket6 = body2.newObject("PartDesign::Pocket", "Pocket005")
pocket6.Profile = sketch10
pocket6.Type = "UpToFirst"
pocket6.Reversed = True

# Sketch on XZ plane
sketch11 = body2.newObject("Sketcher::SketchObject", "Sketch010")
sketch11.AttachmentSupport = (doc.getObject("XZ_Plane001"), [""])
sketch11.MapMode = "FlatFace"
add_polygon(sketch11, [(-67.2, 716.2), (-67.2, 723.2), (-64.3, 723.2), (-64.3, 716.2)])  # lines 0-3
sketch11.addConstraint([
    Sketcher.Constraint("Vertical", 0),
    Sketcher.Constraint("Horizontal", 1),
    Sketcher.Constraint("Vertical", 2),
    Sketcher.Constraint("Horizontal", 3),
    Sketcher.Constraint("DistanceY", 0, 1, 0, 2, Q("7.000001 mm")),
    Sketcher.Constraint("DistanceX", 1, 1, 1, 2, Q("2.838035 mm")),
    Sketcher.Constraint("DistanceY", -1, 1, 0, 2, Q("723.220059 mm")),
    Sketcher.Constraint("DistanceX", 0, 2, -1, 1, Q("67.168503 mm")),
])
sketch11.setExpression("Constraints[8]", "Params.sketch11_height")
pocket7 = body2.newObject("PartDesign::Pocket", "Pocket006")
pocket7.Profile = sketch11
pocket7.setExpression("Length", "Params.pocket7_length")
pocket7.Reversed = True

# Sketch on XZ plane
sketch12 = body2.newObject("Sketcher::SketchObject", "Sketch011")
sketch12.AttachmentSupport = (doc.getObject("XZ_Plane001"), [""])
sketch12.MapMode = "FlatFace"
sketch12.AttachmentOffset = App.Placement(Vector(0, 0, 30), App.Rotation())
sketch12.addGeometry([
    Part.LineSegment(Vector(-87, 716, 0), Vector(-67, 716, 0)),  # 0
    Part.LineSegment(Vector(-67, 716, 0), Vector(-67, 723, 0)),  # 1
    Part.LineSegment(Vector(-67, 723, 0), Vector(-87, 723, 0)),  # 2
    Part.ArcOfCircle(Part.Circle(Vector(-88, 708, 0), Vector(0, 0, 1), 15), math.radians(85), math.radians(175)),  # 3
    Part.LineSegment(Vector(-103, 709, 0), Vector(-103, 649, 0)),  # 4
    Part.LineSegment(Vector(-103, 649, 0), Vector(-96, 649, 0)),  # 5
    Part.LineSegment(Vector(-96, 649, 0), Vector(-96, 709, 0)),  # 6
    Part.ArcOfCircle(Part.Circle(Vector(-88, 709, 0), Vector(0, 0, 1), 8), math.radians(84), math.radians(174)),  # 7
], False)
sketch12.addConstraint([
    Sketcher.Constraint("Coincident", 0, 2, 1, 1),
    Sketcher.Constraint("Coincident", 1, 2, 2, 1),
    Sketcher.Constraint("Coincident", 2, 2, 3, 1),
    Sketcher.Constraint("Coincident", 3, 2, 4, 1),
    Sketcher.Constraint("Coincident", 4, 2, 5, 1),
    Sketcher.Constraint("Coincident", 5, 2, 6, 1),
    Sketcher.Constraint("Coincident", 6, 2, 7, 2),
    Sketcher.Constraint("Coincident", 7, 1, 0, 1),
    Sketcher.Constraint("Horizontal", 0),
    Sketcher.Constraint("Vertical", 1),
    Sketcher.Constraint("Horizontal", 2),
    Sketcher.Constraint("Vertical", 4),
    Sketcher.Constraint("Horizontal", 5),
    Sketcher.Constraint("Vertical", 6),
    Sketcher.Constraint("Vertical", 2, 2, 7, 1),
    Sketcher.Constraint("DistanceY", 1, 1, 1, 2, Q("7.000001 mm")),
    Sketcher.Constraint("DistanceY", 4, 2, 4, 1, Q("60 mm")),
    Sketcher.Constraint("DistanceX", 5, 1, 5, 2, Q("7.9 mm")),
    Sketcher.Constraint("Radius", 7, Q("7.676411 mm")),
    Sketcher.Constraint("Radius", 3, Q("15.137543 mm")),
    Sketcher.Constraint("DistanceY", -1, 1, 3, 2, Q("709.320099 mm")),
    Sketcher.Constraint("DistanceY", 7, 3, 0, 2, Q("7.640598 mm")),
    Sketcher.Constraint("DistanceY", 3, 3, 6, 2, Q("1.190199 mm")),
    Sketcher.Constraint("DistanceX", 0, 1, 0, 2, Q("20.000072 mm")),
    Sketcher.Constraint("DistanceY", 6, 1, 6, 2, Q("59.999513 mm")),
    Sketcher.Constraint("DistanceX", 3, 2, -1, 1, Q("103.44986 mm")),
])
sketch12.setExpression("Constraints[15]", "Params.sketch12_height")
sketch12.setExpression("Constraints[16]", "Params.sketch12_height2")
sketch12.setExpression("Constraints[17]", "Params.sketch12_width")
pocket8 = body2.newObject("PartDesign::Pocket", "Pocket007")
pocket8.Profile = sketch12
pocket8.setExpression("Length", "Params.pocket8_length")
body.Visibility = False
mirroring.Visibility = False

doc.recompute()
